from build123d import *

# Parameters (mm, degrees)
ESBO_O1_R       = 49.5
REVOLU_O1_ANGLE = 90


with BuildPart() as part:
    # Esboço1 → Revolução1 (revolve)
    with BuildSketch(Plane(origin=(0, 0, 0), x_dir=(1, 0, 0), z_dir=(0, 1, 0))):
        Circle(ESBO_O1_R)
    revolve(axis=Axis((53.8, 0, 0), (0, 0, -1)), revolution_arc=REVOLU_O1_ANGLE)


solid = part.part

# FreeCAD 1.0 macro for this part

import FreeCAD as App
import Part
import Sketcher

doc = App.newDocument("Part")
body = doc.addObject("PartDesign::Body", "Body")

# Sketch on XZ plane
sketch1 = doc.addObject("Sketcher::SketchObject", "Sketch")
body.addObject(sketch1)
sketch1.AttachmentSupport = (doc.XZ_Plane, [""])
sketch1.MapMode = "FlatFace"
sketch1.addGeometry(Part.Circle(App.Vector(0, 0, 0), App.Vector(0, 0, 1), 50), False)
sketch1.addGeometry(Part.LineSegment(App.Vector(54, 0, 0), App.Vector(54, -10, 0)), True)  # axis
sketch1.addConstraint([
    Sketcher.Constraint("Vertical", 1),
    Sketcher.Constraint("Coincident", 0, 3, -1, 1),
    Sketcher.Constraint("PointOnObject", 1, 1, -1),
    Sketcher.Constraint("Diameter", 0, 99.0),
    Sketcher.Constraint("DistanceY", 1, 2, 1, 1, 10.0),
    Sketcher.Constraint("DistanceX", -1, 1, 1, 1, 53.8),
])
revolution = doc.addObject("PartDesign::Revolution", "Revolution")
body.addObject(revolution)
revolution.Profile = sketch1
revolution.ReferenceAxis = (sketch1, ["Axis0"])
revolution.Angle = 90

doc.recompute()
